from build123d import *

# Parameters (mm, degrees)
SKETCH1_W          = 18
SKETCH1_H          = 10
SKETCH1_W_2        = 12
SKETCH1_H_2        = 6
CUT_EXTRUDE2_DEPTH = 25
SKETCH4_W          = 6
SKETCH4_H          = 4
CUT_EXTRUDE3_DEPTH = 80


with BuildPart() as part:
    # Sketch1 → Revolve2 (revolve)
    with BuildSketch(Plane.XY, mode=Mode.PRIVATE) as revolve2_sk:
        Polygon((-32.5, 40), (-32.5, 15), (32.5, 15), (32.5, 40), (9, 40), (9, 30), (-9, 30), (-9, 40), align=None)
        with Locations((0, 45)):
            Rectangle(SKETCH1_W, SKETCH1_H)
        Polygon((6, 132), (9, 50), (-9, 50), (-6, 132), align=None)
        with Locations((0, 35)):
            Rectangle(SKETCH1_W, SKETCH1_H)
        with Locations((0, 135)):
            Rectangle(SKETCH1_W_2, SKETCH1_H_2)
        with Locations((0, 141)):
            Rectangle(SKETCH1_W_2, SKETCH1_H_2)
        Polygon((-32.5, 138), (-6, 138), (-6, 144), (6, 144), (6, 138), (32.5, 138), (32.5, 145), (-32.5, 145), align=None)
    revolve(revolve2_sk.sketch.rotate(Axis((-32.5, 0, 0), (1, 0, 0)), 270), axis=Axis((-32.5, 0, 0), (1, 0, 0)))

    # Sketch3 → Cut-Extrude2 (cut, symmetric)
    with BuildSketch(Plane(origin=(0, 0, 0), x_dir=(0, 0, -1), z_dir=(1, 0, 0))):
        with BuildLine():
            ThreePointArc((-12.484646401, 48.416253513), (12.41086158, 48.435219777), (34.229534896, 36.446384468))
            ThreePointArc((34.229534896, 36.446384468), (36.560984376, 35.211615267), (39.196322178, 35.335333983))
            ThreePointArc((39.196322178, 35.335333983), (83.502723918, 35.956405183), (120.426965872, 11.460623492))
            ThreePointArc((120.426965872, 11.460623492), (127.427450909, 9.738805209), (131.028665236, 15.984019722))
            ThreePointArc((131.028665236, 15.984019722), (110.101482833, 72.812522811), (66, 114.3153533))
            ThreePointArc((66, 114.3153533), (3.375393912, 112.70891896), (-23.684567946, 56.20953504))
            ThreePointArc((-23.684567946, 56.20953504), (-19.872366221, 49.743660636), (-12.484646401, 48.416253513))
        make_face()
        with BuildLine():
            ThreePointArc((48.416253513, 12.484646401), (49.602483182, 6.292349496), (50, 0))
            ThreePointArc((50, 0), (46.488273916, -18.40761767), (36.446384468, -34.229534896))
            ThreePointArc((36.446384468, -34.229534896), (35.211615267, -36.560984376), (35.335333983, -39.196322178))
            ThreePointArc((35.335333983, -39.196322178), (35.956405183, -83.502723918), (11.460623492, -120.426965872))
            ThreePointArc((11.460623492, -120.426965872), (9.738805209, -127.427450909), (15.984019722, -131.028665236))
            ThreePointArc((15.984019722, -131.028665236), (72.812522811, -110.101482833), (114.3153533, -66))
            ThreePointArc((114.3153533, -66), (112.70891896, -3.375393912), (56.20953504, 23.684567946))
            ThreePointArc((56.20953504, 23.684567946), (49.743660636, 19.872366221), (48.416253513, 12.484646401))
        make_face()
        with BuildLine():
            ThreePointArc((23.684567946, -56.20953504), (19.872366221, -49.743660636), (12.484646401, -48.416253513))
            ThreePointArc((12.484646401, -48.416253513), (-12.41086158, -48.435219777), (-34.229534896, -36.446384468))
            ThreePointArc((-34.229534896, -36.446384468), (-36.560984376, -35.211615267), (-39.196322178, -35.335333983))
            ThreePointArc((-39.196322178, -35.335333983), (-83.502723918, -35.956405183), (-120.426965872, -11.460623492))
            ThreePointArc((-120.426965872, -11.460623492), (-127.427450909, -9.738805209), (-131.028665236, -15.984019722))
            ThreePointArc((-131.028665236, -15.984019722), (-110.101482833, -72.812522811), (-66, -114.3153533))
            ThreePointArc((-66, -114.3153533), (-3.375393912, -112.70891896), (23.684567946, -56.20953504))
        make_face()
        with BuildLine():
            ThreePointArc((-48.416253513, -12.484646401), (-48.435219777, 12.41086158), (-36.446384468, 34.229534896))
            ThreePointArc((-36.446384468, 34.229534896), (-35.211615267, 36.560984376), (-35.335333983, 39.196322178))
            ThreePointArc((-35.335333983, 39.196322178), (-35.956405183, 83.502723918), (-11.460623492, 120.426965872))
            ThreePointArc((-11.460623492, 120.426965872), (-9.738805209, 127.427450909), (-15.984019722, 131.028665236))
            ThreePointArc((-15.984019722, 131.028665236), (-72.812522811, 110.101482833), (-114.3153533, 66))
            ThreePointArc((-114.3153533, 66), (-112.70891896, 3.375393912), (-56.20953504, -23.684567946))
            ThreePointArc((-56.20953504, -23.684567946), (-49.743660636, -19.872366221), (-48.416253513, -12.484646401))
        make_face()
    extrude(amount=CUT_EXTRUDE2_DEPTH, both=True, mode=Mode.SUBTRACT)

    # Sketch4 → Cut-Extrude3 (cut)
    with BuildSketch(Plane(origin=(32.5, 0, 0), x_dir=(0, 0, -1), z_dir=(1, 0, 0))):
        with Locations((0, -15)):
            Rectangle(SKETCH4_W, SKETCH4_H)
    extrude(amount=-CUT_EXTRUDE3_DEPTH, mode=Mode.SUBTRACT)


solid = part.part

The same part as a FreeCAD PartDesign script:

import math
import FreeCAD as App
import Part
import Sketcher


def add_polygon(sketch, points):
    """Adds a closed chain of lines whose ends are joined by coincident constraints."""
    first, n = sketch.GeometryCount, len(points)
    for a, b in zip(points, points[1:] + points[:1]):
        sketch.addGeometry(Part.LineSegment(App.Vector(*a, 0), App.Vector(*b, 0)), False)
    for i in range(n):
        sketch.addConstraint(Sketcher.Constraint("Coincident", first + i, 2, first + (i + 1) % n, 1))

doc = App.newDocument("Part")
body = doc.addObject("PartDesign::Body", "Body")

sketch1 = body.newObject("Sketcher::SketchObject", "Sketch")
sketch1.AttachmentSupport = (doc.getObject("XY_Plane"), [""])
sketch1.MapMode = "FlatFace"
add_polygon(sketch1, [(-32.5, 40), (-32.5, 15), (32.5, 15), (32.5, 40), (9, 40), (9, 50), (6, 132), (6, 138), (32.5, 138), (32.5, 145), (-32.5, 145), (-32.5, 138), (-6, 138), (-6, 132), (-9, 50), (-9, 40)])
sketch1.addConstraint(Sketcher.Constraint("Vertical", 0))
sketch1.addConstraint(Sketcher.Constraint("Horizontal", 1))
sketch1.addConstraint(Sketcher.Constraint("Vertical", 2))
sketch1.addConstraint(Sketcher.Constraint("Horizontal", 3))
sketch1.addConstraint(Sketcher.Constraint("Vertical", 4))
sketch1.addConstraint(Sketcher.Constraint("Vertical", 6))
sketch1.addConstraint(Sketcher.Constraint("Horizontal", 7))
sketch1.addConstraint(Sketcher.Constraint("Vertical", 8))
sketch1.addConstraint(Sketcher.Constraint("Horizontal", 9))
sketch1.addConstraint(Sketcher.Constraint("Vertical", 10))
sketch1.addConstraint(Sketcher.Constraint("Horizontal", 11))
sketch1.addConstraint(Sketcher.Constraint("Vertical", 12))
sketch1.addConstraint(Sketcher.Constraint("Vertical", 14))
sketch1.addConstraint(Sketcher.Constraint("Horizontal", 15))
sketch1.addConstraint(Sketcher.Constraint("Symmetric", 7, 2, 10, 2, -2))
sketch1.addConstraint(Sketcher.Constraint("Symmetric", 5, 2, 12, 2, -2))
sketch1.addConstraint(Sketcher.Constraint("Symmetric", 4, 2, 13, 2, -2))
sketch1.addConstraint(Sketcher.Constraint("Symmetric", 2, 2, 15, 2, -2))
sketch1.addConstraint(Sketcher.Constraint("Vertical", 2, 2, 7, 2))
sketch1.addConstraint(Sketcher.Constraint("DistanceX", 1, 1, 1, 2, 65.0))
sketch1.addConstraint(Sketcher.Constraint("DistanceY", 0, 2, 0, 1, 25.0))
sketch1.addConstraint(Sketcher.Constraint("DistanceY", 4, 1, 4, 2, 10.0))
sketch1.addConstraint(Sketcher.Constraint("DistanceY", 6, 1, 6, 2, 6.0))
sketch1.addConstraint(Sketcher.Constraint("DistanceY", 8, 1, 8, 2, 7.0))
sketch1.addConstraint(Sketcher.Constraint("DistanceX", 3, 2, 3, 1, 23.5))
sketch1.addConstraint(Sketcher.Constraint("DistanceX", 7, 1, 7, 2, 26.5))
sketch1.addConstraint(Sketcher.Constraint("DistanceY", -1, 1, 0, 2, 15.0))
sketch1.addConstraint(Sketcher.Constraint("DistanceY", -1, 1, 5, 2, 132.0))
revolution = body.newObject("PartDesign::Revolution", "Revolution")
revolution.Profile = sketch1
revolution.ReferenceAxis = (sketch1, ["H_Axis"])
revolution.Angle = 360

sketch2 = body.newObject("Sketcher::SketchObject", "Sketch001")
sketch2.AttachmentSupport = (doc.getObject("YZ_Plane"), [""])
sketch2.MapMode = "FlatFace"
sketch2.addGeometry(Part.ArcOfCircle(Part.Circle(App.Vector(0, 0, 0), App.Vector(0, 0, 1), 50), math.radians(-43.203426), math.radians(14.459342)), False)
sketch2.addGeometry(Part.ArcOfCircle(Part.Circle(App.Vector(40.091023, -37.652488, 0), App.Vector(0, 0, 1), 5), math.radians(136.796574), math.radians(197.984925)), False)
sketch2.addGeometry(Part.ArcOfCircle(Part.Circle(App.Vector(-36, -62.353829, 0), App.Vector(0, 0, 1), 75), math.radians(-50.74238), math.radians(17.984925)), False)
sketch2.addGeometry(Part.ArcOfCircle(Part.Circle(App.Vector(15.257473, -125.072817, 0), App.Vector(0, 0, 1), 6), math.radians(129.25762), math.radians(276.955075)), False)
sketch2.addGeometry(Part.ArcOfCircle(Part.Circle(App.Vector(0, 0, 0), App.Vector(0, 0, 1), 132), math.radians(-83.044925), math.radians(-30)), False)
sketch2.addGeometry(Part.ArcOfCircle(Part.Circle(App.Vector(62.353829, -36, 0), App.Vector(0, 0, 1), 60), math.radians(-30), math.radians(95.877672)), False)
sketch2.addGeometry(Part.ArcOfCircle(Part.Circle(App.Vector(57.131179, 14.731883, 0), App.Vector(0, 0, 1), 9), math.radians(95.877672), math.radians(194.459342)), False)
sketch2.addGeometry(Part.ArcOfCircle(Part.Circle(App.Vector(0, 0, 0), App.Vector(0, 0, 1), 50), math.radians(-90), math.radians(-75.540658)), False)
sketch2.addGeometry(Part.ArcOfCircle(Part.Circle(App.Vector(0, 0, 0), App.Vector(0, 0, 1), 50), math.radians(-133.203426), math.radians(-90)), False)
sketch2.addGeometry(Part.ArcOfCircle(Part.Circle(App.Vector(-37.652488, -40.091023, 0), App.Vector(0, 0, 1), 5), math.radians(46.796574), math.radians(107.984925)), False)
sketch2.addGeometry(Part.ArcOfCircle(Part.Circle(App.Vector(-62.353829, 36, 0), App.Vector(0, 0, 1), 75), math.radians(-140.74238), math.radians(-72.015075)), False)
sketch2.addGeometry(Part.ArcOfCircle(Part.Circle(App.Vector(-125.072817, -15.257473, 0), App.Vector(0, 0, 1), 6), math.radians(39.25762), math.radians(186.955075)), False)
sketch2.addGeometry(Part.ArcOfCircle(Part.Circle(App.Vector(0, 0, 0), App.Vector(0, 0, 1), 132), math.radians(-173.044925), math.radians(-120)), False)
sketch2.addGeometry(Part.ArcOfCircle(Part.Circle(App.Vector(-36, -62.353829, 0), App.Vector(0, 0, 1), 60), math.radians(-120), math.radians(5.877672)), False)
sketch2.addGeometry(Part.ArcOfCircle(Part.Circle(App.Vector(14.731883, -57.131179, 0), App.Vector(0, 0, 1), 9), math.radians(5.877672), math.radians(104.459342)), False)
sketch2.addGeometry(Part.ArcOfCircle(Part.Circle(App.Vector(-57.131179, -14.731883, 0), App.Vector(0, 0, 1), 9), math.radians(-84.122328), math.radians(14.459342)), False)
sketch2.addGeometry(Part.ArcOfCircle(Part.Circle(App.Vector(0, 0, 0), App.Vector(0, 0, 1), 50), math.radians(136.796574), math.radians(194.459342)), False)
sketch2.addGeometry(Part.ArcOfCircle(Part.Circle(App.Vector(-40.091023, 37.652488, 0), App.Vector(0, 0, 1), 5), math.radians(-43.203426), math.radians(17.984925)), False)
sketch2.addGeometry(Part.ArcOfCircle(Part.Circle(App.Vector(36, 62.353829, 0), App.Vector(0, 0, 1), 75), math.radians(129.25762), math.radians(197.984925)), False)
sketch2.addGeometry(Part.ArcOfCircle(Part.Circle(App.Vector(-15.257473, 125.072817, 0), App.Vector(0, 0, 1), 6), math.radians(-50.74238), math.radians(96.955075)), False)
sketch2.addGeometry(Part.ArcOfCircle(Part.Circle(App.Vector(0, 0, 0), App.Vector(0, 0, 1), 132), math.radians(96.955075), math.radians(150)), False)
sketch2.addGeometry(Part.ArcOfCircle(Part.Circle(App.Vector(-62.353829, 36, 0), App.Vector(0, 0, 1), 60), math.radians(150), math.radians(275.877672)), False)
sketch2.addGeometry(Part.ArcOfCircle(Part.Circle(App.Vector(0, 0, 0), App.Vector(0, 0, 1), 50), math.radians(46.796574), math.radians(104.459342)), False)
sketch2.addGeometry(Part.ArcOfCircle(Part.Circle(App.Vector(37.652488, 40.091023, 0), App.Vector(0, 0, 1), 5), math.radians(-133.203426), math.radians(-72.015075)), False)
sketch2.addGeometry(Part.ArcOfCircle(Part.Circle(App.Vector(62.353829, -36, 0), App.Vector(0, 0, 1), 75), math.radians(39.25762), math.radians(107.984925)), False)
sketch2.addGeometry(Part.ArcOfCircle(Part.Circle(App.Vector(125.072817, 15.257473, 0), App.Vector(0, 0, 1), 6), math.radians(-140.74238), math.radians(6.955075)), False)
sketch2.addGeometry(Part.ArcOfCircle(Part.Circle(App.Vector(0, 0, 0), App.Vector(0, 0, 1), 132), math.radians(6.955075), math.radians(60)), False)
sketch2.addGeometry(Part.ArcOfCircle(Part.Circle(App.Vector(36, 62.353829, 0), App.Vector(0, 0, 1), 60), math.radians(60), math.radians(185.877672)), False)
sketch2.addGeometry(Part.ArcOfCircle(Part.Circle(App.Vector(-14.731883, 57.131179, 0), App.Vector(0, 0, 1), 9), math.radians(-174.122328), math.radians(-75.540658)), False)
sketch2.addConstraint(Sketcher.Constraint("Tangent", 0, 1, 1, 1))
sketch2.addConstraint(Sketcher.Constraint("Tangent", 1, 2, 2, 2))
sketch2.addConstraint(Sketcher.Constraint("Tangent", 2, 1, 3, 1))
sketch2.addConstraint(Sketcher.Constraint("Tangent", 3, 2, 4, 1))
sketch2.addConstraint(Sketcher.Constraint("Tangent", 4, 2, 5, 1))
sketch2.addConstraint(Sketcher.Constraint("Tangent", 5, 2, 6, 1))
sketch2.addConstraint(Sketcher.Constraint("Tangent", 6, 2, 0, 2))
sketch2.addConstraint(Sketcher.Constraint("Tangent", 7, 1, 8, 2))
sketch2.addConstraint(Sketcher.Constraint("Tangent", 8, 1, 9, 1))
sketch2.addConstraint(Sketcher.Constraint("Tangent", 9, 2, 10, 2))
sketch2.addConstraint(Sketcher.Constraint("Tangent", 10, 1, 11, 1))
sketch2.addConstraint(Sketcher.Constraint("Tangent", 11, 2, 12, 1))
sketch2.addConstraint(Sketcher.Constraint("Tangent", 12, 2, 13, 1))
sketch2.addConstraint(Sketcher.Constraint("Tangent", 13, 2, 14, 1))
sketch2.addConstraint(Sketcher.Constraint("Tangent", 14, 2, 7, 2))
sketch2.addConstraint(Sketcher.Constraint("Tangent", 15, 2, 16, 2))
sketch2.addConstraint(Sketcher.Constraint("Tangent", 16, 1, 17, 1))
sketch2.addConstraint(Sketcher.Constraint("Tangent", 17, 2, 18, 2))
sketch2.addConstraint(Sketcher.Constraint("Tangent", 18, 1, 19, 1))
sketch2.addConstraint(Sketcher.Constraint("Tangent", 19, 2, 20, 1))
sketch2.addConstraint(Sketcher.Constraint("Tangent", 20, 2, 21, 1))
sketch2.addConstraint(Sketcher.Constraint("Tangent", 21, 2, 15, 1))
sketch2.addConstraint(Sketcher.Constraint("Tangent", 22, 1, 23, 1))
sketch2.addConstraint(Sketcher.Constraint("Tangent", 23, 2, 24, 2))
sketch2.addConstraint(Sketcher.Constraint("Tangent", 24, 1, 25, 1))
sketch2.addConstraint(Sketcher.Constraint("Tangent", 25, 2, 26, 1))
sketch2.addConstraint(Sketcher.Constraint("Tangent", 26, 2, 27, 1))
sketch2.addConstraint(Sketcher.Constraint("Tangent", 27, 2, 28, 1))
sketch2.addConstraint(Sketcher.Constraint("Tangent", 28, 2, 22, 2))
sketch2.addConstraint(Sketcher.Constraint("Coincident", 0, 3, -1, 1))
sketch2.addConstraint(Sketcher.Constraint("Coincident", 4, 3, -1, 1))
sketch2.addConstraint(Sketcher.Constraint("Coincident", 7, 3, -1, 1))
sketch2.addConstraint(Sketcher.Constraint("Coincident", 12, 3, -1, 1))
sketch2.addConstraint(Sketcher.Constraint("Coincident", 16, 3, -1, 1))
sketch2.addConstraint(Sketcher.Constraint("Coincident", 20, 3, -1, 1))
sketch2.addConstraint(Sketcher.Constraint("Coincident", 22, 3, -1, 1))
sketch2.addConstraint(Sketcher.Constraint("Coincident", 26, 3, -1, 1))
sketch2.addConstraint(Sketcher.Constraint("Coincident", 13, 3, 2, 3))
sketch2.addConstraint(Sketcher.Constraint("Coincident", 21, 3, 10, 3))
sketch2.addConstraint(Sketcher.Constraint("Coincident", 24, 3, 5, 3))
sketch2.addConstraint(Sketcher.Constraint("Coincident", 27, 3, 18, 3))
sketch2.addConstraint(Sketcher.Constraint("Equal", 0, 7))
sketch2.addConstraint(Sketcher.Constraint("Equal", 7, 8))
sketch2.addConstraint(Sketcher.Constraint("Equal", 1, 9))
sketch2.addConstraint(Sketcher.Constraint("Equal", 2, 10))
sketch2.addConstraint(Sketcher.Constraint("Equal", 3, 11))
sketch2.addConstraint(Sketcher.Constraint("Equal", 4, 12))
sketch2.addConstraint(Sketcher.Constraint("Equal", 5, 13))
sketch2.addConstraint(Sketcher.Constraint("Equal", 6, 14))
sketch2.addConstraint(Sketcher.Constraint("Equal", 14, 15))
sketch2.addConstraint(Sketcher.Constraint("Equal", 8, 16))
sketch2.addConstraint(Sketcher.Constraint("Equal", 9, 17))
sketch2.addConstraint(Sketcher.Constraint("Equal", 10, 18))
sketch2.addConstraint(Sketcher.Constraint("Equal", 11, 19))
sketch2.addConstraint(Sketcher.Constraint("Equal", 12, 20))
sketch2.addConstraint(Sketcher.Constraint("Equal", 13, 21))
sketch2.addConstraint(Sketcher.Constraint("Equal", 16, 22))
sketch2.addConstraint(Sketcher.Constraint("Equal", 17, 23))
sketch2.addConstraint(Sketcher.Constraint("Equal", 18, 24))
sketch2.addConstraint(Sketcher.Constraint("Equal", 19, 25))
sketch2.addConstraint(Sketcher.Constraint("Equal", 20, 26))
sketch2.addConstraint(Sketcher.Constraint("Equal", 21, 27))
sketch2.addConstraint(Sketcher.Constraint("Equal", 15, 28))
sketch2.addConstraint(Sketcher.Constraint("PointOnObject", 7, 1, -2))
sketch2.addConstraint(Sketcher.Constraint("Radius", 0, 50.0))
sketch2.addConstraint(Sketcher.Constraint("Radius", 1, 5.0))
sketch2.addConstraint(Sketcher.Constraint("Radius", 2, 75.0))
sketch2.addConstraint(Sketcher.Constraint("Radius", 3, 6.0))
sketch2.addConstraint(Sketcher.Constraint("Radius", 4, 132.0))
sketch2.addConstraint(Sketcher.Constraint("Radius", 5, 60.0))
sketch2.addConstraint(Sketcher.Constraint("Radius", 6, 9.0))
sketch2.addConstraint(Sketcher.Constraint("DistanceX", 2, 3, -1, 1, 36.0))
sketch2.addConstraint(Sketcher.Constraint("DistanceY", 5, 3, -1, 1, 36.0))
sketch2.addConstraint(Sketcher.Constraint("DistanceY", -1, 1, 10, 3, 36.0))
sketch2.addConstraint(Sketcher.Constraint("DistanceX", -1, 1, 18, 3, 36.0))
pocket1 = body.newObject("PartDesign::Pocket", "Pocket")
pocket1.Profile = sketch2
pocket1.Length = 50
pocket1.Midplane = True

sketch3 = body.newObject("Sketcher::SketchObject", "Sketch002")
sketch3.AttachmentSupport = (doc.getObject("YZ_Plane"), [""])
sketch3.MapMode = "FlatFace"
sketch3.AttachmentOffset = App.Placement(App.Vector(0, 0, 32.5), App.Rotation())
add_polygon(sketch3, [(-13, 3), (-17, 3), (-17, -3), (-13, -3)])
sketch3.addConstraint(Sketcher.Constraint("Horizontal", 0))
sketch3.addConstraint(Sketcher.Constraint("Vertical", 1))
sketch3.addConstraint(Sketcher.Constraint("Horizontal", 2))
sketch3.addConstraint(Sketcher.Constraint("Vertical", 3))
sketch3.addConstraint(Sketcher.Constraint("DistanceX", 0, 2, 0, 1, 4.0))
sketch3.addConstraint(Sketcher.Constraint("DistanceY", 1, 2, 1, 1, 6.0))
sketch3.addConstraint(Sketcher.Constraint("DistanceX", 0, 2, -1, 1, 17.0))
sketch3.addConstraint(Sketcher.Constraint("DistanceY", -1, 1, 0, 2, 3.0))
pocket2 = body.newObject("PartDesign::Pocket", "Pocket001")
pocket2.Profile = sketch3
pocket2.Length = 80

doc.recompute()
